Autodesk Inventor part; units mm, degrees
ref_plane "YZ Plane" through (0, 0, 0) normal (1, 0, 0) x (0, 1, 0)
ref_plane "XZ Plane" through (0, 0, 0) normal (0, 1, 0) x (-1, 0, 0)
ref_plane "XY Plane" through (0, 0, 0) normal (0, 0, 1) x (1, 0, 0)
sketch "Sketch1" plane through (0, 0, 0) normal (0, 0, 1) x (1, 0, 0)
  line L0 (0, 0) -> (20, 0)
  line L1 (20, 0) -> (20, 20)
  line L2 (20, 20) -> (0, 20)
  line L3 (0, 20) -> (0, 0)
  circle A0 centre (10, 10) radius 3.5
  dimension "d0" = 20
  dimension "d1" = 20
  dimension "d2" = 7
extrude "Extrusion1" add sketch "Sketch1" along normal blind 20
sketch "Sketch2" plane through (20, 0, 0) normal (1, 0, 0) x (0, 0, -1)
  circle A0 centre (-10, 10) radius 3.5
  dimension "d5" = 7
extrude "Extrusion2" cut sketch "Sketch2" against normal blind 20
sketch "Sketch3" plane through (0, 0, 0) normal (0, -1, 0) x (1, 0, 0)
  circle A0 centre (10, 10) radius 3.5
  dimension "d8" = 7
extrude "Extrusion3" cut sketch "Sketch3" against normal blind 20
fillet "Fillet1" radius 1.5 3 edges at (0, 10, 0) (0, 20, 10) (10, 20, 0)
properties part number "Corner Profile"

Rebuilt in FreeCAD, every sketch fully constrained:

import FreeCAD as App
import Part
import Sketcher

V = App.Vector
Q = App.Units.Quantity


def edges_at(feature, points):
    """Names of the edges that pass closest to the given points."""
    edges = feature.Shape.Edges
    near = lambda p: min(range(len(edges)), key=lambda i: edges[i].distToShape(Part.Vertex(*p))[0])
    return sorted({f"Edge{near(p) + 1}" for p in points})


def add_polygon(sketch, points):
    """Adds a closed chain of lines whose ends are joined by coincident constraints."""
    first, n = sketch.GeometryCount, len(points)
    for a, b in zip(points, points[1:] + points[:1]):
        sketch.addGeometry(Part.LineSegment(App.Vector(*a, 0), App.Vector(*b, 0)), False)
    for i in range(n):
        sketch.addConstraint(Sketcher.Constraint("Coincident", first + i, 2, first + (i + 1) % n, 1))

doc = App.newDocument("Part")
body = doc.addObject("PartDesign::Body", "Body")

sketch1 = body.newObject("Sketcher::SketchObject", "Sketch")
sketch1.AttachmentSupport = (doc.getObject("XY_Plane"), [""])
sketch1.MapMode = "FlatFace"
add_polygon(sketch1, [(0, 20), (0, 0), (20, 0), (20, 20)])
sketch1.addGeometry(Part.Circle(V(10, 10, 0), V(0, 0, 1), 3.5), False)
sketch1.addConstraint([
    Sketcher.Constraint("Vertical", 0),
    Sketcher.Constraint("Horizontal", 1),
    Sketcher.Constraint("Vertical", 2),
    Sketcher.Constraint("Horizontal", 3),
    Sketcher.Constraint("Coincident", 0, 2, -1, 1),
    Sketcher.Constraint("Equal", 3, 0),
    Sketcher.Constraint("Diameter", 4, Q("7 mm")),
    Sketcher.Constraint("DistanceX", 1, 1, 1, 2, Q("20 mm")),
    Sketcher.Constraint("DistanceX", -1, 1, 4, 3, Q("10 mm")),
    Sketcher.Constraint("DistanceY", -1, 1, 4, 3, Q("10 mm")),
])
pad1 = body.newObject("PartDesign::Pad", "Pad")
pad1.Profile = sketch1
pad1.Length = 20

sketch2 = body.newObject("Sketcher::SketchObject", "Sketch001")
sketch2.AttachmentSupport = (doc.getObject("YZ_Plane"), [""])
sketch2.MapMode = "FlatFace"
sketch2.AttachmentOffset = App.Placement(V(0, 0, 20), App.Rotation())
sketch2.addGeometry(Part.Circle(V(10, 10, 0), V(0, 0, 1), 3.5), False)
sketch2.addConstraint([
    Sketcher.Constraint("Diameter", 0, Q("7 mm")),
    Sketcher.Constraint("DistanceX", -1, 1, 0, 3, Q("10 mm")),
    Sketcher.Constraint("DistanceY", -1, 1, 0, 3, Q("10 mm")),
])
pocket1 = body.newObject("PartDesign::Pocket", "Pocket")
pocket1.Profile = sketch2
pocket1.Length = 20

sketch3 = body.newObject("Sketcher::SketchObject", "Sketch002")
sketch3.AttachmentSupport = (doc.getObject("XZ_Plane"), [""])
sketch3.MapMode = "FlatFace"
sketch3.addGeometry(Part.Circle(V(10, 10, 0), V(0, 0, 1), 3.5), False)
sketch3.addConstraint([
    Sketcher.Constraint("Diameter", 0, Q("7 mm")),
    Sketcher.Constraint("DistanceX", -1, 1, 0, 3, Q("10 mm")),
    Sketcher.Constraint("DistanceY", -1, 1, 0, 3, Q("10 mm")),
])
pocket2 = body.newObject("PartDesign::Pocket", "Pocket001")
pocket2.Profile = sketch3
pocket2.Length = 20
doc.recompute()

fillet = body.newObject("PartDesign::Fillet", "Fillet")
fillet.Base = (pocket2, edges_at(pocket2, [(0, 10, 0), (0, 20, 10), (10, 20, 0)]))
fillet.Radius = 1.5

doc.recompute()
